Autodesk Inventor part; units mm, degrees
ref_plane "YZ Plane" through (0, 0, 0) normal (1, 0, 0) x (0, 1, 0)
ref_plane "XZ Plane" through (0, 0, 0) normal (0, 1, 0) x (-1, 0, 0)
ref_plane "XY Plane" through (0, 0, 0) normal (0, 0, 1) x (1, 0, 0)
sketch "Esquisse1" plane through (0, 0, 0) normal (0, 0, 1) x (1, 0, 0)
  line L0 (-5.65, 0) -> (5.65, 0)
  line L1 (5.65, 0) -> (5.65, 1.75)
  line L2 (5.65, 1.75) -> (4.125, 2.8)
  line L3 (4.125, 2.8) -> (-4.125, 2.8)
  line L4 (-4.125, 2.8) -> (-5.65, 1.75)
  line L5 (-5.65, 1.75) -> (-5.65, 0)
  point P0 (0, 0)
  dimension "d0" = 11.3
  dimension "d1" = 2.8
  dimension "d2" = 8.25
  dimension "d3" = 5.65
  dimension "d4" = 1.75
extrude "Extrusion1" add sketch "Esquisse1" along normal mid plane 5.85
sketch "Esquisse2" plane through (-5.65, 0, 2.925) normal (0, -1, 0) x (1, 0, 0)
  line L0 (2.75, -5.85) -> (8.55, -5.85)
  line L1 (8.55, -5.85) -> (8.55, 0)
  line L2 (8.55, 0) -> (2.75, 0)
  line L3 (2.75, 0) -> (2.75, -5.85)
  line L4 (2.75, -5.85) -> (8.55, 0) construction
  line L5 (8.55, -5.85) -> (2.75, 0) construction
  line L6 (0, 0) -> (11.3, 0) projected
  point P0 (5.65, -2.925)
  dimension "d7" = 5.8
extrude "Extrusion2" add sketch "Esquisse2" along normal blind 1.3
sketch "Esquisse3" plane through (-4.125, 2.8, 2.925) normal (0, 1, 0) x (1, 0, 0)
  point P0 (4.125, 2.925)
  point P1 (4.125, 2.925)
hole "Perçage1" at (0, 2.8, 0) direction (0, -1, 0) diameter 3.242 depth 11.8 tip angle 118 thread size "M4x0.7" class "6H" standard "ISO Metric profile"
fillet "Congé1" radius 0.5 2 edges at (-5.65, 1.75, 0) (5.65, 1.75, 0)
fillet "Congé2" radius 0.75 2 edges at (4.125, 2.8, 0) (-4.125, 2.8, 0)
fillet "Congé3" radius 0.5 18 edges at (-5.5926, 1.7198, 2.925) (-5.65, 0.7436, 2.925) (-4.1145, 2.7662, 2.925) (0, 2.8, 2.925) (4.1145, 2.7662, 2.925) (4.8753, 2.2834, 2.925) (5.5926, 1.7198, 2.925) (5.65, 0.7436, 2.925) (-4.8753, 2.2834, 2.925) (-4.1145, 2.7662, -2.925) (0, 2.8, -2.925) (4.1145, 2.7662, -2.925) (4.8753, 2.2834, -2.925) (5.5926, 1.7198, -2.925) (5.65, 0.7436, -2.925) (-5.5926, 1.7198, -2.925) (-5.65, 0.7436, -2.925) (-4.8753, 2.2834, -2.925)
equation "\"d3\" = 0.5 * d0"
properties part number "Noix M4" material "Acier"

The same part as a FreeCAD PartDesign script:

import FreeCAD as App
import Part
import Sketcher
from FreeCAD import Vector
Q = App.Units.Quantity


def edges_at(feature, points):
    """Names of the edges that pass closest to the given points."""
    edges = feature.Shape.Edges
    near = lambda p: min(range(len(edges)), key=lambda i: edges[i].distToShape(Part.Vertex(*p))[0])
    return sorted({f"Edge{near(p) + 1}" for p in points})

doc = App.newDocument("Part")
body = doc.addObject("PartDesign::Body", "Body")

sketch1 = body.newObject("Sketcher::SketchObject", "Sketch")
sketch1.AttachmentSupport = (doc.getObject("XY_Plane"), [""])
sketch1.MapMode = "FlatFace"
sketch1.addGeometry([
    Part.LineSegment(Vector(-5.7, 1.8, 0), Vector(-5.7, 0, 0)),
    Part.LineSegment(Vector(-5.7, 0, 0), Vector(5.7, 0, 0)),
    Part.LineSegment(Vector(5.7, 0, 0), Vector(5.7, 1.8, 0)),
    Part.LineSegment(Vector(5.7, 1.8, 0), Vector(4.1, 2.8, 0)),
    Part.LineSegment(Vector(4.1, 2.8, 0), Vector(-4.1, 2.8, 0)),
    Part.LineSegment(Vector(-4.1, 2.8, 0), Vector(-5.7, 1.8, 0)),
], False)
sketch1.addConstraint([
    Sketcher.Constraint("Coincident", 0, 2, 1, 1),
    Sketcher.Constraint("Coincident", 1, 2, 2, 1),
    Sketcher.Constraint("Coincident", 2, 2, 3, 1),
    Sketcher.Constraint("Coincident", 3, 2, 4, 1),
    Sketcher.Constraint("Coincident", 4, 2, 5, 1),
    Sketcher.Constraint("Coincident", 5, 2, 0, 1),
    Sketcher.Constraint("Vertical", 0),
    Sketcher.Constraint("Horizontal", 1),
    Sketcher.Constraint("Vertical", 2),
    Sketcher.Constraint("Horizontal", 4),
    Sketcher.Constraint("Symmetric", 0, 2, 1, 2, -1, 1),
    Sketcher.Constraint("Horizontal", 2, 2, 5, 2),
    Sketcher.Constraint("Equal", 3, 5),
    Sketcher.Constraint("DistanceX", 1, 1, 1, 2, Q("11.3 mm")),
    Sketcher.Constraint("DistanceX", 4, 2, 4, 1, Q("8.25 mm")),
    Sketcher.Constraint("DistanceY", 0, 2, 0, 1, Q("1.75 mm")),
    Sketcher.Constraint("DistanceY", -1, 1, 3, 2, Q("2.8 mm")),
])
pad1 = body.newObject("PartDesign::Pad", "Pad")
pad1.Profile = sketch1
pad1.Length = 5.85
pad1.Midplane = True

sketch2 = body.newObject("Sketcher::SketchObject", "Sketch001")
sketch2.AttachmentSupport = (doc.getObject("XZ_Plane"), [""])
sketch2.MapMode = "FlatFace"
sketch2.addGeometry([
    Part.LineSegment(Vector(-3, 3, 0), Vector(-3, -3, 0)),
    Part.LineSegment(Vector(-3, -3, 0), Vector(3, -3, 0)),
    Part.LineSegment(Vector(3, -3, 0), Vector(3, 3, 0)),
    Part.LineSegment(Vector(3, 3, 0), Vector(-3, 3, 0)),
], False)
sketch2.addConstraint([
    Sketcher.Constraint("Coincident", 0, 2, 1, 1),
    Sketcher.Constraint("Coincident", 1, 2, 2, 1),
    Sketcher.Constraint("Coincident", 2, 2, 3, 1),
    Sketcher.Constraint("Coincident", 3, 2, 0, 1),
    Sketcher.Constraint("Vertical", 0),
    Sketcher.Constraint("Horizontal", 1),
    Sketcher.Constraint("Vertical", 2),
    Sketcher.Constraint("Horizontal", 3),
    Sketcher.Constraint("Symmetric", 0, 2, 2, 2, -1, 1),
    Sketcher.Constraint("DistanceX", 1, 1, 1, 2, Q("5.8 mm")),
    Sketcher.Constraint("DistanceY", 0, 2, 0, 1, Q("5.85 mm")),
])
pad2 = body.newObject("PartDesign::Pad", "Pad001")
pad2.Profile = sketch2
pad2.Length = 1.3

sketch3 = body.newObject("Sketcher::SketchObject", "Sketch002")
sketch3.AttachmentSupport = (doc.getObject("XZ_Plane"), [""])
sketch3.MapMode = "FlatFace"
sketch3.AttachmentOffset = App.Placement(Vector(0, 0, -2.8), App.Rotation())
sketch3.addGeometry(Part.Circle(Vector(0, 0, 0), Vector(0, 0, 1), 1.6), False)
sketch3.addConstraint([
    Sketcher.Constraint("Coincident", 0, 3, -1, 1),
    Sketcher.Constraint("Diameter", 0, Q("3.242 mm")),
])
doc.recompute()
hole = body.newObject("PartDesign::Hole", "Hole")
hole.Profile = sketch3
hole.ThreadType = "None"
hole.Diameter = 3.242
hole.DepthType = "Dimension"
hole.Depth = 11.8
hole.DrillPoint = "Angled"
hole.DrillPointAngle = 118
hole.Reversed = True
doc.recompute()

fillet = body.newObject("PartDesign::Fillet", "Fillet")
fillet.Base = (hole, edges_at(hole, [(-5.65, 1.75, 0), (5.65, 1.75, 0)]))
fillet.Radius = 0.5
doc.recompute()

fillet2 = body.newObject("PartDesign::Fillet", "Fillet001")
fillet2.Base = (fillet, edges_at(fillet, [(4.125, 2.8, 0), (-4.125, 2.8, 0)]))
fillet2.Radius = 0.75
doc.recompute()

fillet3 = body.newObject("PartDesign::Fillet", "Fillet002")
fillet3.Base = (fillet2, edges_at(fillet2, [
    (-5.593, 1.72, 2.925),
    (-5.65, 0.744, 2.925),
    (-4.114, 2.766, 2.925),
    (0, 2.8, 2.925),
    (4.114, 2.766, 2.925),
    (4.875, 2.283, 2.925),
    (5.593, 1.72, 2.925),
    (5.65, 0.744, 2.925),
    (-4.875, 2.283, 2.925),
    (-4.114, 2.766, -2.925),
    (0, 2.8, -2.925),
    (4.114, 2.766, -2.925),
    (4.875, 2.283, -2.925),
    (5.593, 1.72, -2.925),
    (5.65, 0.744, -2.925),
    (-5.593, 1.72, -2.925),
    (-5.65, 0.744, -2.925),
    (-4.875, 2.283, -2.925),
]))
fillet3.Radius = 0.5

doc.recompute()
